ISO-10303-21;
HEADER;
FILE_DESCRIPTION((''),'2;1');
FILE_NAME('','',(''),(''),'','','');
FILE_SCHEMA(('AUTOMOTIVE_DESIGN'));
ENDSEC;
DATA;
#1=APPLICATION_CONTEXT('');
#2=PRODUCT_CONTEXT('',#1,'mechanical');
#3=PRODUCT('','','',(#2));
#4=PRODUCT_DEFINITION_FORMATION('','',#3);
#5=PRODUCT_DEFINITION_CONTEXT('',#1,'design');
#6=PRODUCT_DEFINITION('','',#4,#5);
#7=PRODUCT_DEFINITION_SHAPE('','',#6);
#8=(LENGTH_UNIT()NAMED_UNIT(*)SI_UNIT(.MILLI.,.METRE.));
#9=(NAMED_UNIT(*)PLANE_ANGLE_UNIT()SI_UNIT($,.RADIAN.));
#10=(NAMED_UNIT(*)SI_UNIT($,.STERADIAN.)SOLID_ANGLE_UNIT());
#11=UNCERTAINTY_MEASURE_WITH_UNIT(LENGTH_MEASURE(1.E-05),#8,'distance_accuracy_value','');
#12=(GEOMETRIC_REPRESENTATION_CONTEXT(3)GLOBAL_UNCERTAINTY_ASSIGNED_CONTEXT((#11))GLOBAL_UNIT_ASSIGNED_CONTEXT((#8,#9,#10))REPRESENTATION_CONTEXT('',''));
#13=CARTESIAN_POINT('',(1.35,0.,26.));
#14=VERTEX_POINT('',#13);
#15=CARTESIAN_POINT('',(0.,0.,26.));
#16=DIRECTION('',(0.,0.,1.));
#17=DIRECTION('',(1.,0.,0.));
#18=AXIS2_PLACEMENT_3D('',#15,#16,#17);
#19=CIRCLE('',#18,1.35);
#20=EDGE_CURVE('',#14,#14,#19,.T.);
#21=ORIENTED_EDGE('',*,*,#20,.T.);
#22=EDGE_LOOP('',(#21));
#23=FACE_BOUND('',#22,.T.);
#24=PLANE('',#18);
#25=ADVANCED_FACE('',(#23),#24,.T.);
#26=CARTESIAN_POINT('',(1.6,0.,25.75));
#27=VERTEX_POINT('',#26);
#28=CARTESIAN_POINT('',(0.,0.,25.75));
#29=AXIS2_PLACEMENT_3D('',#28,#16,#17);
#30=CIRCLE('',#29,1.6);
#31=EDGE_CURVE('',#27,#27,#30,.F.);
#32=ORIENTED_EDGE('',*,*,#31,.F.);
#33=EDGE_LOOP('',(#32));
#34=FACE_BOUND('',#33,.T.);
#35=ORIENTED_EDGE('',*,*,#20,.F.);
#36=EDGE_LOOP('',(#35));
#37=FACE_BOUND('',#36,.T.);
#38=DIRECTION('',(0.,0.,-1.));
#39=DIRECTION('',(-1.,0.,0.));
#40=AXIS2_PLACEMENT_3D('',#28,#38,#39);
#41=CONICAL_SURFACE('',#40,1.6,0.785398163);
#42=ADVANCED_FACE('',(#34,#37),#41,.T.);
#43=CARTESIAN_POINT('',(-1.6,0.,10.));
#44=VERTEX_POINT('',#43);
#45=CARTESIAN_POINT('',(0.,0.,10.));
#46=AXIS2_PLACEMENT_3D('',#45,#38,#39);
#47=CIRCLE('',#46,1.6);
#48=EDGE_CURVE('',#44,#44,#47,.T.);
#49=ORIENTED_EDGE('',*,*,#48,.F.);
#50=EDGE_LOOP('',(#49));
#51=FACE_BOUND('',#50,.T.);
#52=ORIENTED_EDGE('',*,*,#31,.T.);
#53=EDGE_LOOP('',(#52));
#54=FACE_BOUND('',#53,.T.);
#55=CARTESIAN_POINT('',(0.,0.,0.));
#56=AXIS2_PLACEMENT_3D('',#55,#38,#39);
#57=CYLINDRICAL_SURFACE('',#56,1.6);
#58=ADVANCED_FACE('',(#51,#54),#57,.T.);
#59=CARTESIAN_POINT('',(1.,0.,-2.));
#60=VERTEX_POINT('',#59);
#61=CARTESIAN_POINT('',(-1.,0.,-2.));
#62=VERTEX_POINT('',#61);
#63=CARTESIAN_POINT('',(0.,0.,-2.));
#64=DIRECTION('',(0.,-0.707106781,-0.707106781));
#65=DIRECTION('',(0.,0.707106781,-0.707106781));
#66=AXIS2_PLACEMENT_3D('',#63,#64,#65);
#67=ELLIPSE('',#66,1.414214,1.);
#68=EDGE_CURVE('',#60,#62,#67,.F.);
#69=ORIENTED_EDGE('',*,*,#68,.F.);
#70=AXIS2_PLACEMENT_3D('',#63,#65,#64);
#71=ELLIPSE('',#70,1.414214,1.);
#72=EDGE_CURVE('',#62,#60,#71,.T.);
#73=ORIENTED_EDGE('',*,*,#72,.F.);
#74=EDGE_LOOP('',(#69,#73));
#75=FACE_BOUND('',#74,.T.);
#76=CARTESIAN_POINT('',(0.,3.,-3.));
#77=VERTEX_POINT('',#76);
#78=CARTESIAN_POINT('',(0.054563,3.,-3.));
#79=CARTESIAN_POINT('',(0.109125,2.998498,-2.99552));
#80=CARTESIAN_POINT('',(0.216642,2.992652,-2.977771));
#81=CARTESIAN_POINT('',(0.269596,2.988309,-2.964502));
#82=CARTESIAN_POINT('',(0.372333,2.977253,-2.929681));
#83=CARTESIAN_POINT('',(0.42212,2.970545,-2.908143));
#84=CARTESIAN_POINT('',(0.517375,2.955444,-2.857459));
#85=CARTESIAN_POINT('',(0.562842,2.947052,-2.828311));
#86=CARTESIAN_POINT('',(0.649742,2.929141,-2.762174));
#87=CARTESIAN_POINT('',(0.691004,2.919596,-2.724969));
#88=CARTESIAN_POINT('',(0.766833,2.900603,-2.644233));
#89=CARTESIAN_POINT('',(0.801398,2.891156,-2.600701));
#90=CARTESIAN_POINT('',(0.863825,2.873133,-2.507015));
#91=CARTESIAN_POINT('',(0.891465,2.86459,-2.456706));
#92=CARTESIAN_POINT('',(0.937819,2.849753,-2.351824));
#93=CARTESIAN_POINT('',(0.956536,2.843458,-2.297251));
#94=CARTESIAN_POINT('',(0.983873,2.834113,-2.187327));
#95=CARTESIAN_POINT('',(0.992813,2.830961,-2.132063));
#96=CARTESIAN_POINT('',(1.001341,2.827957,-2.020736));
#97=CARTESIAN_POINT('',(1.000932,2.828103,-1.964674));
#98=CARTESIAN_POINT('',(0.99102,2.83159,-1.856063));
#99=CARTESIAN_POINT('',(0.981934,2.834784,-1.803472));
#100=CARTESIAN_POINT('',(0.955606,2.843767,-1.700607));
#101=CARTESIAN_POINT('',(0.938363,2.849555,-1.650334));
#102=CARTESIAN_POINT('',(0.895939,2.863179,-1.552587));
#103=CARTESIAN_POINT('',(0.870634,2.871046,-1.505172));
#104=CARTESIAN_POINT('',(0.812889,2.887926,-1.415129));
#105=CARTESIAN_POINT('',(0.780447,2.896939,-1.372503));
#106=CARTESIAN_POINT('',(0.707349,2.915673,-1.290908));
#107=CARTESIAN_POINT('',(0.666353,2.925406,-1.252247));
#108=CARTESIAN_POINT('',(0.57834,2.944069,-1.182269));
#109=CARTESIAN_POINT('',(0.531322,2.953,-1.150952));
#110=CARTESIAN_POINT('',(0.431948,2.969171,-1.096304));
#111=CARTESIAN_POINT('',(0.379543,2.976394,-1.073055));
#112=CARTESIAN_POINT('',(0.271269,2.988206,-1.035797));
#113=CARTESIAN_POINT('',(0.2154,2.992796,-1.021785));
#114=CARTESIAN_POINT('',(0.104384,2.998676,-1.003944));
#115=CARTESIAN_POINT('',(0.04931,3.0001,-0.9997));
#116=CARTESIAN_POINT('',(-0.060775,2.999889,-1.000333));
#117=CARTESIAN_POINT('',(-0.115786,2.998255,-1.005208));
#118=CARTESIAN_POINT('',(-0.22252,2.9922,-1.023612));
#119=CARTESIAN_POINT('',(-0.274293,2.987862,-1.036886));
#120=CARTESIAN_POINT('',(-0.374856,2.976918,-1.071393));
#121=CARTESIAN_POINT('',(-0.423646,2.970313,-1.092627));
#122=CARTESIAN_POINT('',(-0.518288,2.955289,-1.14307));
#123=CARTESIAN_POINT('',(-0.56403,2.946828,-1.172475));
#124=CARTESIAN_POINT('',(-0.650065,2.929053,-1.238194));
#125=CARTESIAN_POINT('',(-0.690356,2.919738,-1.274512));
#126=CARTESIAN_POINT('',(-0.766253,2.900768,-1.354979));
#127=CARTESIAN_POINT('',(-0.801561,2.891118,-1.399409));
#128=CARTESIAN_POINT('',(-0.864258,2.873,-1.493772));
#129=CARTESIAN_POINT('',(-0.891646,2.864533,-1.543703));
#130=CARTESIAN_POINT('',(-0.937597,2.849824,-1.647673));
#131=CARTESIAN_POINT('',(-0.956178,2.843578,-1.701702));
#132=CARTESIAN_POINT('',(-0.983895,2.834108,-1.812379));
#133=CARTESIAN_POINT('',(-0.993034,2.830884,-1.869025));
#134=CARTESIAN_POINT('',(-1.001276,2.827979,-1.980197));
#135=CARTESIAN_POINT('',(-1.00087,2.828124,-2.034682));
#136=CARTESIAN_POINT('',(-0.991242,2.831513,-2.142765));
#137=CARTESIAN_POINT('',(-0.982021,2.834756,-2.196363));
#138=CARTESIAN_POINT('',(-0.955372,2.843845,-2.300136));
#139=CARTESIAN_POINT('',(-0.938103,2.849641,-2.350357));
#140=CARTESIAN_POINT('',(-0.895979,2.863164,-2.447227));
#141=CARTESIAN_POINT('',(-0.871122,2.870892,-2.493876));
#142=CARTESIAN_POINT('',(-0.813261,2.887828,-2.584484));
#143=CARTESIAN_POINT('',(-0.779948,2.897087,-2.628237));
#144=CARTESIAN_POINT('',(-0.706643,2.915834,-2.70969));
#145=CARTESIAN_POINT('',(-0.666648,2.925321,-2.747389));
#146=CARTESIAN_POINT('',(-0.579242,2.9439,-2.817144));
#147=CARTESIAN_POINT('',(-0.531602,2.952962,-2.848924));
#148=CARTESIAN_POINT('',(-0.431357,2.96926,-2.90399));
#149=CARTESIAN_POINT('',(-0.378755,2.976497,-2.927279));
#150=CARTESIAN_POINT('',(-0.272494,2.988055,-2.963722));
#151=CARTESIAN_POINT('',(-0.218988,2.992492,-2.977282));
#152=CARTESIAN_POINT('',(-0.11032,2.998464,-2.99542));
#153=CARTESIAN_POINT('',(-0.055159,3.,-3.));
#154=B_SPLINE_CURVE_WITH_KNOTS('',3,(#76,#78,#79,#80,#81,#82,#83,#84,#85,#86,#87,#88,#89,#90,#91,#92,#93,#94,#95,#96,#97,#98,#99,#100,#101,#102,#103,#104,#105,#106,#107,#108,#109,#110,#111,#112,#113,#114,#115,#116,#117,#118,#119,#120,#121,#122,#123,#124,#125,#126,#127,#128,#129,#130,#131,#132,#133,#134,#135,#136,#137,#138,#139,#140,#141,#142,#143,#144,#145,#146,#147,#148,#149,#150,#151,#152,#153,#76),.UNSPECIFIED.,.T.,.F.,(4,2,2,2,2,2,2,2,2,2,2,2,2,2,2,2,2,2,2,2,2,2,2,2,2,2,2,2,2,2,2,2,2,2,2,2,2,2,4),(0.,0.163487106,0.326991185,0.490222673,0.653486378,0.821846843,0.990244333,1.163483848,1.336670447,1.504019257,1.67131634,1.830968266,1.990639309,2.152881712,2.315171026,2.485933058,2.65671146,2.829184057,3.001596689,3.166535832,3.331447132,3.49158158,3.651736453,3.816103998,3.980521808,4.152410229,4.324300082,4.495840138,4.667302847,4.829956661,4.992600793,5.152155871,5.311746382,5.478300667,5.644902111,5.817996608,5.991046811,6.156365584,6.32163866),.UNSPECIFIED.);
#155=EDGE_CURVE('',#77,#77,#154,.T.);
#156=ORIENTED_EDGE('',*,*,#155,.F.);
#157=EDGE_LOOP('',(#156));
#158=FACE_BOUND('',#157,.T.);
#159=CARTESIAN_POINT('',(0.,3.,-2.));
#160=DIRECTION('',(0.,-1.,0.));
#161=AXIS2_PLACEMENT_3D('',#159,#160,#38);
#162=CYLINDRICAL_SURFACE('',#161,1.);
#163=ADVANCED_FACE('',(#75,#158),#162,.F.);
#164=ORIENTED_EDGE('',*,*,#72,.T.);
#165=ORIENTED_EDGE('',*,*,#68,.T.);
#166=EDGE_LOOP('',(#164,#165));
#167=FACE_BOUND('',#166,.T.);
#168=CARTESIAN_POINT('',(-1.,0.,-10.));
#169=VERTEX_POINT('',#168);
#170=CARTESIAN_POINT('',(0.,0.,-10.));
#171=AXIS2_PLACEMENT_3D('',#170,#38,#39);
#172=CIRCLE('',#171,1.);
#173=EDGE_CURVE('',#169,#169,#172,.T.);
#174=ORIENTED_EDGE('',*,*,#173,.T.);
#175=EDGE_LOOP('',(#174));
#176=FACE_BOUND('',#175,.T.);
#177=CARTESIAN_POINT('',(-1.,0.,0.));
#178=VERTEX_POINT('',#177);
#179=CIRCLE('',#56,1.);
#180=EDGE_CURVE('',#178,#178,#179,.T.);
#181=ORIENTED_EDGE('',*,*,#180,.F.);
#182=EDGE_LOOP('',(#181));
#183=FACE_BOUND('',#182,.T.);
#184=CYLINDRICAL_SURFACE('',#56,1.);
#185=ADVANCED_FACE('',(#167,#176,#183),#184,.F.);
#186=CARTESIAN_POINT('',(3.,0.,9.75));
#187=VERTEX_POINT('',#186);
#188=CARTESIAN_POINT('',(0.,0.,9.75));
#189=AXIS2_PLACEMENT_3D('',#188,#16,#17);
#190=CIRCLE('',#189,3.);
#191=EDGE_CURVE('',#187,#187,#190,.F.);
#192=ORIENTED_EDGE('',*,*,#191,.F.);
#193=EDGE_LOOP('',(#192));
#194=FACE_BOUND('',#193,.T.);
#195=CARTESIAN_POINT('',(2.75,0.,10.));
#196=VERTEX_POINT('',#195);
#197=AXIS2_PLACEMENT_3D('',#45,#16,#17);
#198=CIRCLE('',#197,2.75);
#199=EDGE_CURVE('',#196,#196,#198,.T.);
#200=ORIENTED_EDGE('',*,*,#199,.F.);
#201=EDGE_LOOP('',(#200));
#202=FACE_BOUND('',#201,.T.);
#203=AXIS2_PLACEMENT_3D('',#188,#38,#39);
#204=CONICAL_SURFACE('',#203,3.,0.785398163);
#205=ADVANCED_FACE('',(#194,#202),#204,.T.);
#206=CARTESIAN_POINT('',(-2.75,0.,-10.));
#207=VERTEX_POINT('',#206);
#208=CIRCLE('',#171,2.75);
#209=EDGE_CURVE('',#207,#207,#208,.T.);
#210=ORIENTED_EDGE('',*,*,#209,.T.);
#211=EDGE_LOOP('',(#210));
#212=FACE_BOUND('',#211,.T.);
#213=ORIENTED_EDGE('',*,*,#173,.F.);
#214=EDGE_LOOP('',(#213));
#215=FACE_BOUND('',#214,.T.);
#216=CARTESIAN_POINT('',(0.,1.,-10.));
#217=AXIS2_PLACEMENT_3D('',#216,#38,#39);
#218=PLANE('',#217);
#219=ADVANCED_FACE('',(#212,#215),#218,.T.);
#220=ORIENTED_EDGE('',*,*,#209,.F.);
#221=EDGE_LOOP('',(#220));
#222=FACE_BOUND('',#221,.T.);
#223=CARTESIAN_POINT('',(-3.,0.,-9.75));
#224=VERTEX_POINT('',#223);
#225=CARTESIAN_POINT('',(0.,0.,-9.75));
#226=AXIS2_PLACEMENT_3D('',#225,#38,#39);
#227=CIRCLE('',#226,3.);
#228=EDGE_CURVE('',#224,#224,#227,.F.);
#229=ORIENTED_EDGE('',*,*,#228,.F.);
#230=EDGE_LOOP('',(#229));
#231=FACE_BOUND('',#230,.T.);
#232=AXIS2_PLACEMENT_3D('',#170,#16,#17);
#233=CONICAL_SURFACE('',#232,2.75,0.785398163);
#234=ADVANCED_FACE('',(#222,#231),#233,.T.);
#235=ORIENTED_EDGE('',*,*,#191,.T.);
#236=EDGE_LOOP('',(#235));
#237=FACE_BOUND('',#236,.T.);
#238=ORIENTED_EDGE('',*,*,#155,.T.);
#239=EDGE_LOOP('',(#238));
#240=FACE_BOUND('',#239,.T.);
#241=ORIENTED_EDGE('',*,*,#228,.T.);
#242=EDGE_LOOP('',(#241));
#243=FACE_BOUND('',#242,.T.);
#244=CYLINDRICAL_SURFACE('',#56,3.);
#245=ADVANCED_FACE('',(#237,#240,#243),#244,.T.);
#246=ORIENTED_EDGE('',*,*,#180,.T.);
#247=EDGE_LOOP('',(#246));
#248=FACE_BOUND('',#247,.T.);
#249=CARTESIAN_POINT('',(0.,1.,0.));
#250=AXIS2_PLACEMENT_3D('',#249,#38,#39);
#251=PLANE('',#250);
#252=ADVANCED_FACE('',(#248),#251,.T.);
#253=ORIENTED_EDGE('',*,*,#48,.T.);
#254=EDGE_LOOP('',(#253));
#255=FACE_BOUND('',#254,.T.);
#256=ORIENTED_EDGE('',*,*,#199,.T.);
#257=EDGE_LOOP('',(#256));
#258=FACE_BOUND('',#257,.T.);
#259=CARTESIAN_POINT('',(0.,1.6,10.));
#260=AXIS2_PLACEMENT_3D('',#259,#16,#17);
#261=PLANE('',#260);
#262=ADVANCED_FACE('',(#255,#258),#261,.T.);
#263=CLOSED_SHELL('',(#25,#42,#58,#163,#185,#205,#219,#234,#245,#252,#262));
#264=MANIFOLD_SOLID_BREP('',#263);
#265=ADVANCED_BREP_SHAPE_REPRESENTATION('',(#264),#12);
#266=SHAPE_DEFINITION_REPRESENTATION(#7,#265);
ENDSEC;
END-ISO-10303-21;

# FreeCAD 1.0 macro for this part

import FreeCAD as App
import Part
import Sketcher
Q = App.Units.Quantity


def edges_at(feature, points):
    """Names of the edges that pass closest to the given points."""
    edges = feature.Shape.Edges
    near = lambda p: min(range(len(edges)), key=lambda i: edges[i].distToShape(Part.Vertex(*p))[0])
    return sorted({f"Edge{near(p) + 1}" for p in points})


def add_polygon(sketch, points):
    """Adds a closed chain of lines whose ends are joined by coincident constraints."""
    first, n = sketch.GeometryCount, len(points)
    for a, b in zip(points, points[1:] + points[:1]):
        sketch.addGeometry(Part.LineSegment(App.Vector(*a, 0), App.Vector(*b, 0)), False)
    for i in range(n):
        sketch.addConstraint(Sketcher.Constraint("Coincident", first + i, 2, first + (i + 1) % n, 1))

doc = App.newDocument("Part")
params = doc.addObject("Spreadsheet::Sheet", "Params")
for row, (alias, value) in enumerate([
    ("sketch1_width", "2 mm"),
    ("sketch1_width2", "1 mm"),
    ("sketch1_height", "10 mm"),
    ("sketch1_height2", "20 mm"),
    ("sketch1_height3", "16 mm"),
    ("revolution_angle", "360 deg"),
    ("sketch2_diameter", "2 mm"),
    ("chamfer_size", "0.25 mm"),
], start=1):
    params.set(f"A{row}", alias)
    params.set(f"B{row}", "=" + value)
    params.setAlias(f"B{row}", alias)

body = doc.addObject("PartDesign::Body", "Body")

# Sketch on YZ plane
sketch1 = body.newObject("Sketcher::SketchObject", "Sketch")
sketch1.AttachmentSupport = (doc.getObject("YZ_Plane"), [""])
sketch1.MapMode = "FlatFace"
add_polygon(sketch1, [(1, 0), (1, -10), (3, -10), (3, 10), (1.6, 10), (1.6, 26), (0, 26), (0, 0)])  # lines 0-7
sketch1.addConstraint(Sketcher.Constraint("Vertical", 0))
sketch1.addConstraint(Sketcher.Constraint("Horizontal", 1))
sketch1.addConstraint(Sketcher.Constraint("Vertical", 2))
sketch1.addConstraint(Sketcher.Constraint("Horizontal", 3))
sketch1.addConstraint(Sketcher.Constraint("Vertical", 4))
sketch1.addConstraint(Sketcher.Constraint("Horizontal", 5))
sketch1.addConstraint(Sketcher.Constraint("Vertical", 6))
sketch1.addConstraint(Sketcher.Constraint("Horizontal", 7))
sketch1.addConstraint(Sketcher.Constraint("Coincident", 6, 2, -1, 1))
sketch1.addConstraint(Sketcher.Constraint("DistanceX", 1, 1, 1, 2, Q("2 mm")))
sketch1.addConstraint(Sketcher.Constraint("DistanceX", 7, 1, 7, 2, Q("1 mm")))
sketch1.addConstraint(Sketcher.Constraint("DistanceY", 0, 2, 0, 1, Q("10 mm")))
sketch1.addConstraint(Sketcher.Constraint("DistanceY", 2, 1, 2, 2, Q("20 mm")))
sketch1.addConstraint(Sketcher.Constraint("DistanceY", 4, 1, 4, 2, Q("16 mm")))
sketch1.addConstraint(Sketcher.Constraint("DistanceX", 3, 2, 3, 1, Q("1.4 mm")))
sketch1.setExpression("Constraints[17]", "Params.sketch1_width")
sketch1.setExpression("Constraints[18]", "Params.sketch1_width2")
sketch1.setExpression("Constraints[19]", "Params.sketch1_height")
sketch1.setExpression("Constraints[20]", "Params.sketch1_height2")
sketch1.setExpression("Constraints[21]", "Params.sketch1_height3")
revolution = body.newObject("PartDesign::Revolution", "Revolution")
revolution.Profile = sketch1
revolution.ReferenceAxis = (sketch1, ["V_Axis"])
revolution.setExpression("Angle", "Params.revolution_angle")

# Sketch on XZ plane
sketch2 = body.newObject("Sketcher::SketchObject", "Sketch001")
sketch2.AttachmentSupport = (doc.getObject("XZ_Plane"), [""])
sketch2.MapMode = "FlatFace"
sketch2.addGeometry(Part.Circle(App.Vector(0, -2, 0), App.Vector(0, 0, 1), 1), False)
sketch2.addConstraint(Sketcher.Constraint("PointOnObject", 0, 3, -2))
sketch2.addConstraint(Sketcher.Constraint("Diameter", 0, Q("2 mm")))
sketch2.addConstraint(Sketcher.Constraint("DistanceY", 0, 3, -1, 1, Q("2 mm")))
sketch2.setExpression("Constraints[1]", "Params.sketch2_diameter")
pocket1 = body.newObject("PartDesign::Pocket", "Pocket")
pocket1.Profile = sketch2
pocket1.Type = "ThroughAll"
doc.recompute()

chamfer = body.newObject("PartDesign::Chamfer", "Chamfer")
chamfer.Base = (pocket1, edges_at(pocket1, [(0, -3, -10), (0, -3, 10), (0, -1.6, 26)]))
chamfer.setExpression("Size", "Params.chamfer_size")

doc.recompute()
